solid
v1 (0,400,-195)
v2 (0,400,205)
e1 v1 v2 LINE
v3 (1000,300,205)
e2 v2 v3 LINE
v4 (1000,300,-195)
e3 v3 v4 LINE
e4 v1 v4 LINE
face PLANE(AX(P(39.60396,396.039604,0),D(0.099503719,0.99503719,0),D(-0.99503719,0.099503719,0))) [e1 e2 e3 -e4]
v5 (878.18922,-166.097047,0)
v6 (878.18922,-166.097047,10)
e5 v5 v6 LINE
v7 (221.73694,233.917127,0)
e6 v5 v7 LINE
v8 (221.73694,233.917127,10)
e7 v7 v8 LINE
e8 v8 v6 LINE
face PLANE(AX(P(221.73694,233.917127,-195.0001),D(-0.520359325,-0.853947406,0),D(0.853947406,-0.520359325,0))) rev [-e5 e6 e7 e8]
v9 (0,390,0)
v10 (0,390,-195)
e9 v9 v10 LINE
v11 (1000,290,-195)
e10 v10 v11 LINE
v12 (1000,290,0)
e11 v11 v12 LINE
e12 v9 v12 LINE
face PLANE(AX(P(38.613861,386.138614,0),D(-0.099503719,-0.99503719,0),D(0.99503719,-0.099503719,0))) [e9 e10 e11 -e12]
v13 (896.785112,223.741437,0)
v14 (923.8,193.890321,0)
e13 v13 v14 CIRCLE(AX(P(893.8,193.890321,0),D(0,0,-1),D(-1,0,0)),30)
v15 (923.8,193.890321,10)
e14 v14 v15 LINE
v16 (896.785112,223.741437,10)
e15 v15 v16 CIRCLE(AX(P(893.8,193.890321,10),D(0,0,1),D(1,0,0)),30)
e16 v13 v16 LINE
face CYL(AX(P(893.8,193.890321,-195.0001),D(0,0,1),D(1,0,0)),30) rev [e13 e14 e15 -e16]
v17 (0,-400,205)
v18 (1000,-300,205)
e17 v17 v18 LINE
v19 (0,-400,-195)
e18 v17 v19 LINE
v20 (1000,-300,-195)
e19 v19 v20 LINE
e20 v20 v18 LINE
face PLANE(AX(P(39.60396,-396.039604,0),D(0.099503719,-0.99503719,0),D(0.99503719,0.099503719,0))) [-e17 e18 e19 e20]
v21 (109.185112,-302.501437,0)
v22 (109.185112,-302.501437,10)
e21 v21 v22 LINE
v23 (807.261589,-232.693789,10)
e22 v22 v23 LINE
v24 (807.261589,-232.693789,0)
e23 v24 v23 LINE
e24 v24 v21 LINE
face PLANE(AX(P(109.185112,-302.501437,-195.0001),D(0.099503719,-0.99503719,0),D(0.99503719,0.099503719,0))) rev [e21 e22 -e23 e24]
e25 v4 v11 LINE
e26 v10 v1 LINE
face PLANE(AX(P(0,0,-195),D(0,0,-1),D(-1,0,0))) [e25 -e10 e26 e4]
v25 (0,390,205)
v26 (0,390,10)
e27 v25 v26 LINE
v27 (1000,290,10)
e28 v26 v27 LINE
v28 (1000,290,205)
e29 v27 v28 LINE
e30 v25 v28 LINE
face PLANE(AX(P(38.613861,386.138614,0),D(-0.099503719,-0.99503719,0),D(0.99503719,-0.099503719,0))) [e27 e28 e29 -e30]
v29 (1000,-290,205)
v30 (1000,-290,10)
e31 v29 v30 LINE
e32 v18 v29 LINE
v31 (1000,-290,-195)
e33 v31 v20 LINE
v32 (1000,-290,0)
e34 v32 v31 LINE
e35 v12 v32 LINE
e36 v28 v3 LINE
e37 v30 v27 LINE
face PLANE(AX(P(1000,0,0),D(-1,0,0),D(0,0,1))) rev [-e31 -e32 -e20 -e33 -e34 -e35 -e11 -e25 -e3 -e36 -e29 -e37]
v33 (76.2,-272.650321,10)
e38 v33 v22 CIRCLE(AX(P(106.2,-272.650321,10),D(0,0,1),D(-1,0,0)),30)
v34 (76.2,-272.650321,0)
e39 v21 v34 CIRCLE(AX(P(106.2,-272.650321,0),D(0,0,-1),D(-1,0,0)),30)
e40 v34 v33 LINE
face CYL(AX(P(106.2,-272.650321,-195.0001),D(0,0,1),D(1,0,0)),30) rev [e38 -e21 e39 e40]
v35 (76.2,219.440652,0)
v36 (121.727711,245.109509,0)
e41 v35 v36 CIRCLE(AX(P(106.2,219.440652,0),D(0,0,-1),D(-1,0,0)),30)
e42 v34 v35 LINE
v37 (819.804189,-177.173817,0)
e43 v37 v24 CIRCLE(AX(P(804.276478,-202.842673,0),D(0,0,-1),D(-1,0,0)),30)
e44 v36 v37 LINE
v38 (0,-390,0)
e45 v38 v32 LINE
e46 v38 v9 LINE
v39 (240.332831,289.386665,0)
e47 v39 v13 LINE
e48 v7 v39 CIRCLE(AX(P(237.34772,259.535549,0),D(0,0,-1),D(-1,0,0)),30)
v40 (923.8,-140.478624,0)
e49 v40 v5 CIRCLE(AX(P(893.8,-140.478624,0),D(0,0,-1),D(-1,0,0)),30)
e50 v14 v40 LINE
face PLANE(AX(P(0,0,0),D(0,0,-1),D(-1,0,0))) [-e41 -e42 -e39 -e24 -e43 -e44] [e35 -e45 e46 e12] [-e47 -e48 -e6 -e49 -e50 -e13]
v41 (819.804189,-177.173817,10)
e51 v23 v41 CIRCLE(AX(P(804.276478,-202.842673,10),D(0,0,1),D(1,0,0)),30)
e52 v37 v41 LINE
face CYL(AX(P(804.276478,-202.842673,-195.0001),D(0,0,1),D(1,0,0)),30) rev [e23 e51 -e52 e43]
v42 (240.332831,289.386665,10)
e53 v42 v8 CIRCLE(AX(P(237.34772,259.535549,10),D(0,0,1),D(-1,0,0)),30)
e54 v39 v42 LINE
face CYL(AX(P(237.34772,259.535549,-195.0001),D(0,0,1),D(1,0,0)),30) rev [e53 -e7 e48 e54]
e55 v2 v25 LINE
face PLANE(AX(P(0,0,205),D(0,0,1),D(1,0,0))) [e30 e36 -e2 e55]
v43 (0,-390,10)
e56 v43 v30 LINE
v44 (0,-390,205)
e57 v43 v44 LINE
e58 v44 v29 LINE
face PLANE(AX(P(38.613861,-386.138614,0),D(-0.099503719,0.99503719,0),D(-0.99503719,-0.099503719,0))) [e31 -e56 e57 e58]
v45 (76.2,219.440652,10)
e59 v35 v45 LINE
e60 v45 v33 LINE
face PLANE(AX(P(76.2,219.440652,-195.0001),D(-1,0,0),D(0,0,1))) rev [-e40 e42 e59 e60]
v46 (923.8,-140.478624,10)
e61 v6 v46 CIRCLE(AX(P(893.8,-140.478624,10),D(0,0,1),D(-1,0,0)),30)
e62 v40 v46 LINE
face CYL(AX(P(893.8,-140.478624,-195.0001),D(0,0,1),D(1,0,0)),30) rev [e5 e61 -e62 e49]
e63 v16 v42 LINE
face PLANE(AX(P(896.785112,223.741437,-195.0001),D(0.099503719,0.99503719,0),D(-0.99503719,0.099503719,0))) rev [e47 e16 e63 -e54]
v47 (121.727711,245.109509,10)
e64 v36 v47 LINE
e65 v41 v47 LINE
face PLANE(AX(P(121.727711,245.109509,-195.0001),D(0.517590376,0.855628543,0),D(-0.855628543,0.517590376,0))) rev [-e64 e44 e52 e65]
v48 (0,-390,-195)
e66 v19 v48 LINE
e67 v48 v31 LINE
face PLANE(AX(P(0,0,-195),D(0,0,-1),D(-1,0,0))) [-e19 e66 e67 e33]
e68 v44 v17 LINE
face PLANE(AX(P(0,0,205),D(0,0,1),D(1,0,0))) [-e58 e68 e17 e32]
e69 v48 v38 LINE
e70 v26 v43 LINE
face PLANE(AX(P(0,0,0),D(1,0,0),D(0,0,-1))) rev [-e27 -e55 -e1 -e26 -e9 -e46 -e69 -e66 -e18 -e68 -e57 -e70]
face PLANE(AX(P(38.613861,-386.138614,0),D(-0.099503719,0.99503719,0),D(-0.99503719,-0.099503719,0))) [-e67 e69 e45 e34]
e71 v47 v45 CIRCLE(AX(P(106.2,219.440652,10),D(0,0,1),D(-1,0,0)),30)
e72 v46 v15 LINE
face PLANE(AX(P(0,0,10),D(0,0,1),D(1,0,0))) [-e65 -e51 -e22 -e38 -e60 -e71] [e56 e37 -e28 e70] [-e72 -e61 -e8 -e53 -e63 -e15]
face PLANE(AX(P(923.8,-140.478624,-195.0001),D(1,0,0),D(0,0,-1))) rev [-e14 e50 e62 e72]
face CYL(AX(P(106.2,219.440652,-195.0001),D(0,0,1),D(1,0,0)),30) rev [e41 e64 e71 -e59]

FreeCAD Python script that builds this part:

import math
import FreeCAD as App
import Part
import Sketcher

V = App.Vector

doc = App.newDocument("Part")
params = doc.addObject("Spreadsheet::Sheet", "Params")
for row, (alias, value) in enumerate([
    ("sketch1_width", "10 mm"),
    ("sketch1_width2", "780 mm"),
    ("sketch1_height", "400 mm"),
    ("sketch1_height2", "195 mm"),
    ("sketch2_width", "10 mm"),
    ("sketch2_width2", "580 mm"),
    ("sketch2_height", "400 mm"),
    ("sketch2_height2", "195 mm"),
    ("sketch3_radius", "30 mm"),
], start=1):
    params.set(f"A{row}", alias)
    params.set(f"B{row}", "=" + value)
    params.setAlias(f"B{row}", alias)

body = doc.addObject("PartDesign::Body", "Body")

sketch1 = body.newObject("Sketcher::SketchObject", "Sketch")
sketch1.AttachmentSupport = (doc.getObject("YZ_Plane"), [""])
sketch1.MapMode = "FlatFace"
sketch1.addGeometry(Part.LineSegment(V(400, -195, 0), V(400, 205, 0)), False)
sketch1.addGeometry(Part.LineSegment(V(400, 205, 0), V(390, 205, 0)), False)
sketch1.addGeometry(Part.LineSegment(V(390, 205, 0), V(390, 10, 0)), False)
sketch1.addGeometry(Part.LineSegment(V(390, 10, 0), V(-390, 10, 0)), False)
sketch1.addGeometry(Part.LineSegment(V(-390, 10, 0), V(-390, 205, 0)), False)
sketch1.addGeometry(Part.LineSegment(V(-390, 205, 0), V(-400, 205, 0)), False)
sketch1.addGeometry(Part.LineSegment(V(-400, 205, 0), V(-400, -195, 0)), False)
sketch1.addGeometry(Part.LineSegment(V(-400, -195, 0), V(-390, -195, 0)), False)
sketch1.addGeometry(Part.LineSegment(V(-390, -195, 0), V(-390, 0, 0)), False)
sketch1.addGeometry(Part.LineSegment(V(-390, 0, 0), V(390, 0, 0)), False)
sketch1.addGeometry(Part.LineSegment(V(390, 0, 0), V(390, -195, 0)), False)
sketch1.addGeometry(Part.LineSegment(V(390, -195, 0), V(400, -195, 0)), False)
sketch1.addConstraint(Sketcher.Constraint("Coincident", 0, 2, 1, 1))
sketch1.addConstraint(Sketcher.Constraint("Coincident", 1, 2, 2, 1))
sketch1.addConstraint(Sketcher.Constraint("Coincident", 2, 2, 3, 1))
sketch1.addConstraint(Sketcher.Constraint("Coincident", 3, 2, 4, 1))
sketch1.addConstraint(Sketcher.Constraint("Coincident", 4, 2, 5, 1))
sketch1.addConstraint(Sketcher.Constraint("Coincident", 5, 2, 6, 1))
sketch1.addConstraint(Sketcher.Constraint("Coincident", 6, 2, 7, 1))
sketch1.addConstraint(Sketcher.Constraint("Coincident", 7, 2, 8, 1))
sketch1.addConstraint(Sketcher.Constraint("Coincident", 8, 2, 9, 1))
sketch1.addConstraint(Sketcher.Constraint("Coincident", 9, 2, 10, 1))
sketch1.addConstraint(Sketcher.Constraint("Coincident", 10, 2, 11, 1))
sketch1.addConstraint(Sketcher.Constraint("Coincident", 11, 2, 0, 1))
sketch1.addConstraint(Sketcher.Constraint("Vertical", 0))
sketch1.addConstraint(Sketcher.Constraint("Horizontal", 1))
sketch1.addConstraint(Sketcher.Constraint("Vertical", 2))
sketch1.addConstraint(Sketcher.Constraint("Horizontal", 3))
sketch1.addConstraint(Sketcher.Constraint("Vertical", 4))
sketch1.addConstraint(Sketcher.Constraint("Horizontal", 5))
sketch1.addConstraint(Sketcher.Constraint("Vertical", 6))
sketch1.addConstraint(Sketcher.Constraint("Horizontal", 7))
sketch1.addConstraint(Sketcher.Constraint("Vertical", 8))
sketch1.addConstraint(Sketcher.Constraint("Horizontal", 9))
sketch1.addConstraint(Sketcher.Constraint("Vertical", 10))
sketch1.addConstraint(Sketcher.Constraint("Horizontal", 11))
sketch1.addConstraint(Sketcher.Constraint("Symmetric", 8, 2, 9, 2, -1, 1))
sketch1.addConstraint(Sketcher.Constraint("Symmetric", 1, 2, 4, 2, -2))
sketch1.addConstraint(Sketcher.Constraint("Symmetric", 6, 2, 11, 2, -2))
sketch1.addConstraint(Sketcher.Constraint("Vertical", 4, 2, 7, 2))
sketch1.addConstraint(Sketcher.Constraint("Equal", 4, 8))
sketch1.addConstraint(Sketcher.Constraint("DistanceX", 1, 2, 1, 1, 10.0))
sketch1.addConstraint(Sketcher.Constraint("DistanceX", 3, 2, 3, 1, 780.0))
sketch1.addConstraint(Sketcher.Constraint("DistanceY", 0, 1, 0, 2, 400.0))
sketch1.addConstraint(Sketcher.Constraint("DistanceY", 2, 2, 2, 1, 195.0))
sketch1.setExpression("Constraints[29]", "Params.sketch1_width")
sketch1.setExpression("Constraints[30]", "Params.sketch1_width2")
sketch1.setExpression("Constraints[31]", "Params.sketch1_height")
sketch1.setExpression("Constraints[32]", "Params.sketch1_height2")

sketch2 = body.newObject("Sketcher::SketchObject", "Sketch001")
sketch2.AttachmentSupport = (doc.getObject("YZ_Plane"), [""])
sketch2.MapMode = "FlatFace"
sketch2.AttachmentOffset = App.Placement(V(0, 0, 1000), App.Rotation())
sketch2.addGeometry(Part.LineSegment(V(300, 205, 0), V(300, -195, 0)), False)
sketch2.addGeometry(Part.LineSegment(V(300, -195, 0), V(290, -195, 0)), False)
sketch2.addGeometry(Part.LineSegment(V(290, -195, 0), V(290, 0, 0)), False)
sketch2.addGeometry(Part.LineSegment(V(290, 0, 0), V(-290, 0, 0)), False)
sketch2.addGeometry(Part.LineSegment(V(-290, 0, 0), V(-290, -195, 0)), False)
sketch2.addGeometry(Part.LineSegment(V(-290, -195, 0), V(-300, -195, 0)), False)
sketch2.addGeometry(Part.LineSegment(V(-300, -195, 0), V(-300, 205, 0)), False)
sketch2.addGeometry(Part.LineSegment(V(-300, 205, 0), V(-290, 205, 0)), False)
sketch2.addGeometry(Part.LineSegment(V(-290, 205, 0), V(-290, 10, 0)), False)
sketch2.addGeometry(Part.LineSegment(V(-290, 10, 0), V(290, 10, 0)), False)
sketch2.addGeometry(Part.LineSegment(V(290, 10, 0), V(290, 205, 0)), False)
sketch2.addGeometry(Part.LineSegment(V(290, 205, 0), V(300, 205, 0)), False)
sketch2.addConstraint(Sketcher.Constraint("Coincident", 0, 2, 1, 1))
sketch2.addConstraint(Sketcher.Constraint("Coincident", 1, 2, 2, 1))
sketch2.addConstraint(Sketcher.Constraint("Coincident", 2, 2, 3, 1))
sketch2.addConstraint(Sketcher.Constraint("Coincident", 3, 2, 4, 1))
sketch2.addConstraint(Sketcher.Constraint("Coincident", 4, 2, 5, 1))
sketch2.addConstraint(Sketcher.Constraint("Coincident", 5, 2, 6, 1))
sketch2.addConstraint(Sketcher.Constraint("Coincident", 6, 2, 7, 1))
sketch2.addConstraint(Sketcher.Constraint("Coincident", 7, 2, 8, 1))
sketch2.addConstraint(Sketcher.Constraint("Coincident", 8, 2, 9, 1))
sketch2.addConstraint(Sketcher.Constraint("Coincident", 9, 2, 10, 1))
sketch2.addConstraint(Sketcher.Constraint("Coincident", 10, 2, 11, 1))
sketch2.addConstraint(Sketcher.Constraint("Coincident", 11, 2, 0, 1))
sketch2.addConstraint(Sketcher.Constraint("Vertical", 0))
sketch2.addConstraint(Sketcher.Constraint("Horizontal", 1))
sketch2.addConstraint(Sketcher.Constraint("Vertical", 2))
sketch2.addConstraint(Sketcher.Constraint("Horizontal", 3))
sketch2.addConstraint(Sketcher.Constraint("Vertical", 4))
sketch2.addConstraint(Sketcher.Constraint("Horizontal", 5))
sketch2.addConstraint(Sketcher.Constraint("Vertical", 6))
sketch2.addConstraint(Sketcher.Constraint("Horizontal", 7))
sketch2.addConstraint(Sketcher.Constraint("Vertical", 8))
sketch2.addConstraint(Sketcher.Constraint("Horizontal", 9))
sketch2.addConstraint(Sketcher.Constraint("Vertical", 10))
sketch2.addConstraint(Sketcher.Constraint("Horizontal", 11))
sketch2.addConstraint(Sketcher.Constraint("Symmetric", 2, 2, 3, 2, -1, 1))
sketch2.addConstraint(Sketcher.Constraint("Symmetric", 0, 2, 5, 2, -2))
sketch2.addConstraint(Sketcher.Constraint("Symmetric", 7, 2, 10, 2, -2))
sketch2.addConstraint(Sketcher.Constraint("Vertical", 4, 2, 7, 2))
sketch2.addConstraint(Sketcher.Constraint("Equal", 4, 8))
sketch2.addConstraint(Sketcher.Constraint("DistanceX", 1, 2, 1, 1, 10.0))
sketch2.addConstraint(Sketcher.Constraint("DistanceX", 3, 2, 3, 1, 580.0))
sketch2.addConstraint(Sketcher.Constraint("DistanceY", 0, 2, 0, 1, 400.0))
sketch2.addConstraint(Sketcher.Constraint("DistanceY", 2, 1, 2, 2, 195.0))
sketch2.setExpression("Constraints[29]", "Params.sketch2_width")
sketch2.setExpression("Constraints[30]", "Params.sketch2_width2")
sketch2.setExpression("Constraints[31]", "Params.sketch2_height")
sketch2.setExpression("Constraints[32]", "Params.sketch2_height2")

additiveloft = body.newObject("PartDesign::AdditiveLoft", "AdditiveLoft")
additiveloft.Profile = sketch1
additiveloft.Sections = [sketch2]

sketch3 = body.newObject("Sketcher::SketchObject", "Sketch002")
sketch3.AttachmentSupport = (doc.getObject("XY_Plane"), [""])
sketch3.MapMode = "FlatFace"
sketch3.AttachmentOffset = App.Placement(V(0, 0, 10), App.Rotation())
sketch3.addGeometry(Part.LineSegment(V(221.73694, 233.917127, 0), V(878.18922, -166.097047, 0)), False)
sketch3.addGeometry(Part.ArcOfCircle(Part.Circle(V(893.8, -140.478624, 0), V(0, 0, 1), 30), math.radians(-121.356357), math.radians(0)), False)
sketch3.addGeometry(Part.LineSegment(V(923.8, -140.478624, 0), V(923.8, 193.890321, 0)), False)
sketch3.addGeometry(Part.ArcOfCircle(Part.Circle(V(893.8, 193.890321, 0), V(0, 0, 1), 30), math.radians(0), math.radians(84.289407)), False)
sketch3.addGeometry(Part.LineSegment(V(896.785112, 223.741437, 0), V(240.332831, 289.386665, 0)), False)
sketch3.addGeometry(Part.ArcOfCircle(Part.Circle(V(237.34772, 259.535549, 0), V(0, 0, 1), 30), math.radians(84.289407), math.radians(238.643643)), False)
sketch3.addGeometry(Part.LineSegment(V(819.804189, -177.173817, 0), V(121.727711, 245.109509, 0)), False)
sketch3.addGeometry(Part.ArcOfCircle(Part.Circle(V(106.2, 219.440652, 0), V(0, 0, 1), 30), math.radians(58.829243), math.radians(180)), False)
sketch3.addGeometry(Part.LineSegment(V(76.2, 219.440652, 0), V(76.2, -272.650321, 0)), False)
sketch3.addGeometry(Part.ArcOfCircle(Part.Circle(V(106.2, -272.650321, 0), V(0, 0, 1), 30), math.radians(180), math.radians(275.710593)), False)
sketch3.addGeometry(Part.LineSegment(V(109.185112, -302.501437, 0), V(807.261589, -232.693789, 0)), False)
sketch3.addGeometry(Part.ArcOfCircle(Part.Circle(V(804.276478, -202.842673, 0), V(0, 0, 1), 30), math.radians(-84.289407), math.radians(58.829243)), False)
sketch3.addConstraint(Sketcher.Constraint("Tangent", 0, 2, 1, 1))
sketch3.addConstraint(Sketcher.Constraint("Tangent", 1, 2, 2, 1))
sketch3.addConstraint(Sketcher.Constraint("Tangent", 2, 2, 3, 1))
sketch3.addConstraint(Sketcher.Constraint("Tangent", 3, 2, 4, 1))
sketch3.addConstraint(Sketcher.Constraint("Tangent", 4, 2, 5, 1))
sketch3.addConstraint(Sketcher.Constraint("Tangent", 5, 2, 0, 1))
sketch3.addConstraint(Sketcher.Constraint("Tangent", 6, 2, 7, 1))
sketch3.addConstraint(Sketcher.Constraint("Tangent", 7, 2, 8, 1))
sketch3.addConstraint(Sketcher.Constraint("Tangent", 8, 2, 9, 1))
sketch3.addConstraint(Sketcher.Constraint("Tangent", 9, 2, 10, 1))
sketch3.addConstraint(Sketcher.Constraint("Tangent", 10, 2, 11, 1))
sketch3.addConstraint(Sketcher.Constraint("Tangent", 11, 2, 6, 1))
sketch3.addConstraint(Sketcher.Constraint("Vertical", 2))
sketch3.addConstraint(Sketcher.Constraint("Vertical", 8))
sketch3.addConstraint(Sketcher.Constraint("Equal", 1, 3))
sketch3.addConstraint(Sketcher.Constraint("Equal", 3, 5))
sketch3.addConstraint(Sketcher.Constraint("Equal", 5, 7))
sketch3.addConstraint(Sketcher.Constraint("Equal", 7, 9))
sketch3.addConstraint(Sketcher.Constraint("Equal", 9, 11))
sketch3.addConstraint(Sketcher.Constraint("Radius", 1, 30.0))
sketch3.addConstraint(Sketcher.Constraint("DistanceX", -1, 1, 1, 3, 893.8))
sketch3.addConstraint(Sketcher.Constraint("DistanceX", -1, 1, 7, 3, 106.2))
sketch3.addConstraint(Sketcher.Constraint("DistanceX", 5, 3, 0, 2, 640.8415))
sketch3.addConstraint(Sketcher.Constraint("DistanceY", 2, 1, 2, 2, 334.368945))
sketch3.addConstraint(Sketcher.Constraint("DistanceY", 8, 2, 8, 1, 492.090973))
sketch3.addConstraint(Sketcher.Constraint("DistanceY", -1, 1, 3, 3, 193.890321))
sketch3.addConstraint(Sketcher.Constraint("DistanceX", -1, 1, 5, 3, 237.34772))
sketch3.addConstraint(Sketcher.Constraint("DistanceY", 9, 3, -1, 1, 272.650321))
sketch3.addConstraint(Sketcher.Constraint("DistanceX", -1, 1, 6, 2, 121.727711))
sketch3.addConstraint(Sketcher.Constraint("DistanceX", -1, 1, 10, 2, 807.261589))
sketch3.setExpression("Constraints[19]", "Params.sketch3_radius")
pocket1 = body.newObject("PartDesign::Pocket", "Pocket")
pocket1.Profile = sketch3
pocket1.Type = "ThroughAll"

doc.recompute()
